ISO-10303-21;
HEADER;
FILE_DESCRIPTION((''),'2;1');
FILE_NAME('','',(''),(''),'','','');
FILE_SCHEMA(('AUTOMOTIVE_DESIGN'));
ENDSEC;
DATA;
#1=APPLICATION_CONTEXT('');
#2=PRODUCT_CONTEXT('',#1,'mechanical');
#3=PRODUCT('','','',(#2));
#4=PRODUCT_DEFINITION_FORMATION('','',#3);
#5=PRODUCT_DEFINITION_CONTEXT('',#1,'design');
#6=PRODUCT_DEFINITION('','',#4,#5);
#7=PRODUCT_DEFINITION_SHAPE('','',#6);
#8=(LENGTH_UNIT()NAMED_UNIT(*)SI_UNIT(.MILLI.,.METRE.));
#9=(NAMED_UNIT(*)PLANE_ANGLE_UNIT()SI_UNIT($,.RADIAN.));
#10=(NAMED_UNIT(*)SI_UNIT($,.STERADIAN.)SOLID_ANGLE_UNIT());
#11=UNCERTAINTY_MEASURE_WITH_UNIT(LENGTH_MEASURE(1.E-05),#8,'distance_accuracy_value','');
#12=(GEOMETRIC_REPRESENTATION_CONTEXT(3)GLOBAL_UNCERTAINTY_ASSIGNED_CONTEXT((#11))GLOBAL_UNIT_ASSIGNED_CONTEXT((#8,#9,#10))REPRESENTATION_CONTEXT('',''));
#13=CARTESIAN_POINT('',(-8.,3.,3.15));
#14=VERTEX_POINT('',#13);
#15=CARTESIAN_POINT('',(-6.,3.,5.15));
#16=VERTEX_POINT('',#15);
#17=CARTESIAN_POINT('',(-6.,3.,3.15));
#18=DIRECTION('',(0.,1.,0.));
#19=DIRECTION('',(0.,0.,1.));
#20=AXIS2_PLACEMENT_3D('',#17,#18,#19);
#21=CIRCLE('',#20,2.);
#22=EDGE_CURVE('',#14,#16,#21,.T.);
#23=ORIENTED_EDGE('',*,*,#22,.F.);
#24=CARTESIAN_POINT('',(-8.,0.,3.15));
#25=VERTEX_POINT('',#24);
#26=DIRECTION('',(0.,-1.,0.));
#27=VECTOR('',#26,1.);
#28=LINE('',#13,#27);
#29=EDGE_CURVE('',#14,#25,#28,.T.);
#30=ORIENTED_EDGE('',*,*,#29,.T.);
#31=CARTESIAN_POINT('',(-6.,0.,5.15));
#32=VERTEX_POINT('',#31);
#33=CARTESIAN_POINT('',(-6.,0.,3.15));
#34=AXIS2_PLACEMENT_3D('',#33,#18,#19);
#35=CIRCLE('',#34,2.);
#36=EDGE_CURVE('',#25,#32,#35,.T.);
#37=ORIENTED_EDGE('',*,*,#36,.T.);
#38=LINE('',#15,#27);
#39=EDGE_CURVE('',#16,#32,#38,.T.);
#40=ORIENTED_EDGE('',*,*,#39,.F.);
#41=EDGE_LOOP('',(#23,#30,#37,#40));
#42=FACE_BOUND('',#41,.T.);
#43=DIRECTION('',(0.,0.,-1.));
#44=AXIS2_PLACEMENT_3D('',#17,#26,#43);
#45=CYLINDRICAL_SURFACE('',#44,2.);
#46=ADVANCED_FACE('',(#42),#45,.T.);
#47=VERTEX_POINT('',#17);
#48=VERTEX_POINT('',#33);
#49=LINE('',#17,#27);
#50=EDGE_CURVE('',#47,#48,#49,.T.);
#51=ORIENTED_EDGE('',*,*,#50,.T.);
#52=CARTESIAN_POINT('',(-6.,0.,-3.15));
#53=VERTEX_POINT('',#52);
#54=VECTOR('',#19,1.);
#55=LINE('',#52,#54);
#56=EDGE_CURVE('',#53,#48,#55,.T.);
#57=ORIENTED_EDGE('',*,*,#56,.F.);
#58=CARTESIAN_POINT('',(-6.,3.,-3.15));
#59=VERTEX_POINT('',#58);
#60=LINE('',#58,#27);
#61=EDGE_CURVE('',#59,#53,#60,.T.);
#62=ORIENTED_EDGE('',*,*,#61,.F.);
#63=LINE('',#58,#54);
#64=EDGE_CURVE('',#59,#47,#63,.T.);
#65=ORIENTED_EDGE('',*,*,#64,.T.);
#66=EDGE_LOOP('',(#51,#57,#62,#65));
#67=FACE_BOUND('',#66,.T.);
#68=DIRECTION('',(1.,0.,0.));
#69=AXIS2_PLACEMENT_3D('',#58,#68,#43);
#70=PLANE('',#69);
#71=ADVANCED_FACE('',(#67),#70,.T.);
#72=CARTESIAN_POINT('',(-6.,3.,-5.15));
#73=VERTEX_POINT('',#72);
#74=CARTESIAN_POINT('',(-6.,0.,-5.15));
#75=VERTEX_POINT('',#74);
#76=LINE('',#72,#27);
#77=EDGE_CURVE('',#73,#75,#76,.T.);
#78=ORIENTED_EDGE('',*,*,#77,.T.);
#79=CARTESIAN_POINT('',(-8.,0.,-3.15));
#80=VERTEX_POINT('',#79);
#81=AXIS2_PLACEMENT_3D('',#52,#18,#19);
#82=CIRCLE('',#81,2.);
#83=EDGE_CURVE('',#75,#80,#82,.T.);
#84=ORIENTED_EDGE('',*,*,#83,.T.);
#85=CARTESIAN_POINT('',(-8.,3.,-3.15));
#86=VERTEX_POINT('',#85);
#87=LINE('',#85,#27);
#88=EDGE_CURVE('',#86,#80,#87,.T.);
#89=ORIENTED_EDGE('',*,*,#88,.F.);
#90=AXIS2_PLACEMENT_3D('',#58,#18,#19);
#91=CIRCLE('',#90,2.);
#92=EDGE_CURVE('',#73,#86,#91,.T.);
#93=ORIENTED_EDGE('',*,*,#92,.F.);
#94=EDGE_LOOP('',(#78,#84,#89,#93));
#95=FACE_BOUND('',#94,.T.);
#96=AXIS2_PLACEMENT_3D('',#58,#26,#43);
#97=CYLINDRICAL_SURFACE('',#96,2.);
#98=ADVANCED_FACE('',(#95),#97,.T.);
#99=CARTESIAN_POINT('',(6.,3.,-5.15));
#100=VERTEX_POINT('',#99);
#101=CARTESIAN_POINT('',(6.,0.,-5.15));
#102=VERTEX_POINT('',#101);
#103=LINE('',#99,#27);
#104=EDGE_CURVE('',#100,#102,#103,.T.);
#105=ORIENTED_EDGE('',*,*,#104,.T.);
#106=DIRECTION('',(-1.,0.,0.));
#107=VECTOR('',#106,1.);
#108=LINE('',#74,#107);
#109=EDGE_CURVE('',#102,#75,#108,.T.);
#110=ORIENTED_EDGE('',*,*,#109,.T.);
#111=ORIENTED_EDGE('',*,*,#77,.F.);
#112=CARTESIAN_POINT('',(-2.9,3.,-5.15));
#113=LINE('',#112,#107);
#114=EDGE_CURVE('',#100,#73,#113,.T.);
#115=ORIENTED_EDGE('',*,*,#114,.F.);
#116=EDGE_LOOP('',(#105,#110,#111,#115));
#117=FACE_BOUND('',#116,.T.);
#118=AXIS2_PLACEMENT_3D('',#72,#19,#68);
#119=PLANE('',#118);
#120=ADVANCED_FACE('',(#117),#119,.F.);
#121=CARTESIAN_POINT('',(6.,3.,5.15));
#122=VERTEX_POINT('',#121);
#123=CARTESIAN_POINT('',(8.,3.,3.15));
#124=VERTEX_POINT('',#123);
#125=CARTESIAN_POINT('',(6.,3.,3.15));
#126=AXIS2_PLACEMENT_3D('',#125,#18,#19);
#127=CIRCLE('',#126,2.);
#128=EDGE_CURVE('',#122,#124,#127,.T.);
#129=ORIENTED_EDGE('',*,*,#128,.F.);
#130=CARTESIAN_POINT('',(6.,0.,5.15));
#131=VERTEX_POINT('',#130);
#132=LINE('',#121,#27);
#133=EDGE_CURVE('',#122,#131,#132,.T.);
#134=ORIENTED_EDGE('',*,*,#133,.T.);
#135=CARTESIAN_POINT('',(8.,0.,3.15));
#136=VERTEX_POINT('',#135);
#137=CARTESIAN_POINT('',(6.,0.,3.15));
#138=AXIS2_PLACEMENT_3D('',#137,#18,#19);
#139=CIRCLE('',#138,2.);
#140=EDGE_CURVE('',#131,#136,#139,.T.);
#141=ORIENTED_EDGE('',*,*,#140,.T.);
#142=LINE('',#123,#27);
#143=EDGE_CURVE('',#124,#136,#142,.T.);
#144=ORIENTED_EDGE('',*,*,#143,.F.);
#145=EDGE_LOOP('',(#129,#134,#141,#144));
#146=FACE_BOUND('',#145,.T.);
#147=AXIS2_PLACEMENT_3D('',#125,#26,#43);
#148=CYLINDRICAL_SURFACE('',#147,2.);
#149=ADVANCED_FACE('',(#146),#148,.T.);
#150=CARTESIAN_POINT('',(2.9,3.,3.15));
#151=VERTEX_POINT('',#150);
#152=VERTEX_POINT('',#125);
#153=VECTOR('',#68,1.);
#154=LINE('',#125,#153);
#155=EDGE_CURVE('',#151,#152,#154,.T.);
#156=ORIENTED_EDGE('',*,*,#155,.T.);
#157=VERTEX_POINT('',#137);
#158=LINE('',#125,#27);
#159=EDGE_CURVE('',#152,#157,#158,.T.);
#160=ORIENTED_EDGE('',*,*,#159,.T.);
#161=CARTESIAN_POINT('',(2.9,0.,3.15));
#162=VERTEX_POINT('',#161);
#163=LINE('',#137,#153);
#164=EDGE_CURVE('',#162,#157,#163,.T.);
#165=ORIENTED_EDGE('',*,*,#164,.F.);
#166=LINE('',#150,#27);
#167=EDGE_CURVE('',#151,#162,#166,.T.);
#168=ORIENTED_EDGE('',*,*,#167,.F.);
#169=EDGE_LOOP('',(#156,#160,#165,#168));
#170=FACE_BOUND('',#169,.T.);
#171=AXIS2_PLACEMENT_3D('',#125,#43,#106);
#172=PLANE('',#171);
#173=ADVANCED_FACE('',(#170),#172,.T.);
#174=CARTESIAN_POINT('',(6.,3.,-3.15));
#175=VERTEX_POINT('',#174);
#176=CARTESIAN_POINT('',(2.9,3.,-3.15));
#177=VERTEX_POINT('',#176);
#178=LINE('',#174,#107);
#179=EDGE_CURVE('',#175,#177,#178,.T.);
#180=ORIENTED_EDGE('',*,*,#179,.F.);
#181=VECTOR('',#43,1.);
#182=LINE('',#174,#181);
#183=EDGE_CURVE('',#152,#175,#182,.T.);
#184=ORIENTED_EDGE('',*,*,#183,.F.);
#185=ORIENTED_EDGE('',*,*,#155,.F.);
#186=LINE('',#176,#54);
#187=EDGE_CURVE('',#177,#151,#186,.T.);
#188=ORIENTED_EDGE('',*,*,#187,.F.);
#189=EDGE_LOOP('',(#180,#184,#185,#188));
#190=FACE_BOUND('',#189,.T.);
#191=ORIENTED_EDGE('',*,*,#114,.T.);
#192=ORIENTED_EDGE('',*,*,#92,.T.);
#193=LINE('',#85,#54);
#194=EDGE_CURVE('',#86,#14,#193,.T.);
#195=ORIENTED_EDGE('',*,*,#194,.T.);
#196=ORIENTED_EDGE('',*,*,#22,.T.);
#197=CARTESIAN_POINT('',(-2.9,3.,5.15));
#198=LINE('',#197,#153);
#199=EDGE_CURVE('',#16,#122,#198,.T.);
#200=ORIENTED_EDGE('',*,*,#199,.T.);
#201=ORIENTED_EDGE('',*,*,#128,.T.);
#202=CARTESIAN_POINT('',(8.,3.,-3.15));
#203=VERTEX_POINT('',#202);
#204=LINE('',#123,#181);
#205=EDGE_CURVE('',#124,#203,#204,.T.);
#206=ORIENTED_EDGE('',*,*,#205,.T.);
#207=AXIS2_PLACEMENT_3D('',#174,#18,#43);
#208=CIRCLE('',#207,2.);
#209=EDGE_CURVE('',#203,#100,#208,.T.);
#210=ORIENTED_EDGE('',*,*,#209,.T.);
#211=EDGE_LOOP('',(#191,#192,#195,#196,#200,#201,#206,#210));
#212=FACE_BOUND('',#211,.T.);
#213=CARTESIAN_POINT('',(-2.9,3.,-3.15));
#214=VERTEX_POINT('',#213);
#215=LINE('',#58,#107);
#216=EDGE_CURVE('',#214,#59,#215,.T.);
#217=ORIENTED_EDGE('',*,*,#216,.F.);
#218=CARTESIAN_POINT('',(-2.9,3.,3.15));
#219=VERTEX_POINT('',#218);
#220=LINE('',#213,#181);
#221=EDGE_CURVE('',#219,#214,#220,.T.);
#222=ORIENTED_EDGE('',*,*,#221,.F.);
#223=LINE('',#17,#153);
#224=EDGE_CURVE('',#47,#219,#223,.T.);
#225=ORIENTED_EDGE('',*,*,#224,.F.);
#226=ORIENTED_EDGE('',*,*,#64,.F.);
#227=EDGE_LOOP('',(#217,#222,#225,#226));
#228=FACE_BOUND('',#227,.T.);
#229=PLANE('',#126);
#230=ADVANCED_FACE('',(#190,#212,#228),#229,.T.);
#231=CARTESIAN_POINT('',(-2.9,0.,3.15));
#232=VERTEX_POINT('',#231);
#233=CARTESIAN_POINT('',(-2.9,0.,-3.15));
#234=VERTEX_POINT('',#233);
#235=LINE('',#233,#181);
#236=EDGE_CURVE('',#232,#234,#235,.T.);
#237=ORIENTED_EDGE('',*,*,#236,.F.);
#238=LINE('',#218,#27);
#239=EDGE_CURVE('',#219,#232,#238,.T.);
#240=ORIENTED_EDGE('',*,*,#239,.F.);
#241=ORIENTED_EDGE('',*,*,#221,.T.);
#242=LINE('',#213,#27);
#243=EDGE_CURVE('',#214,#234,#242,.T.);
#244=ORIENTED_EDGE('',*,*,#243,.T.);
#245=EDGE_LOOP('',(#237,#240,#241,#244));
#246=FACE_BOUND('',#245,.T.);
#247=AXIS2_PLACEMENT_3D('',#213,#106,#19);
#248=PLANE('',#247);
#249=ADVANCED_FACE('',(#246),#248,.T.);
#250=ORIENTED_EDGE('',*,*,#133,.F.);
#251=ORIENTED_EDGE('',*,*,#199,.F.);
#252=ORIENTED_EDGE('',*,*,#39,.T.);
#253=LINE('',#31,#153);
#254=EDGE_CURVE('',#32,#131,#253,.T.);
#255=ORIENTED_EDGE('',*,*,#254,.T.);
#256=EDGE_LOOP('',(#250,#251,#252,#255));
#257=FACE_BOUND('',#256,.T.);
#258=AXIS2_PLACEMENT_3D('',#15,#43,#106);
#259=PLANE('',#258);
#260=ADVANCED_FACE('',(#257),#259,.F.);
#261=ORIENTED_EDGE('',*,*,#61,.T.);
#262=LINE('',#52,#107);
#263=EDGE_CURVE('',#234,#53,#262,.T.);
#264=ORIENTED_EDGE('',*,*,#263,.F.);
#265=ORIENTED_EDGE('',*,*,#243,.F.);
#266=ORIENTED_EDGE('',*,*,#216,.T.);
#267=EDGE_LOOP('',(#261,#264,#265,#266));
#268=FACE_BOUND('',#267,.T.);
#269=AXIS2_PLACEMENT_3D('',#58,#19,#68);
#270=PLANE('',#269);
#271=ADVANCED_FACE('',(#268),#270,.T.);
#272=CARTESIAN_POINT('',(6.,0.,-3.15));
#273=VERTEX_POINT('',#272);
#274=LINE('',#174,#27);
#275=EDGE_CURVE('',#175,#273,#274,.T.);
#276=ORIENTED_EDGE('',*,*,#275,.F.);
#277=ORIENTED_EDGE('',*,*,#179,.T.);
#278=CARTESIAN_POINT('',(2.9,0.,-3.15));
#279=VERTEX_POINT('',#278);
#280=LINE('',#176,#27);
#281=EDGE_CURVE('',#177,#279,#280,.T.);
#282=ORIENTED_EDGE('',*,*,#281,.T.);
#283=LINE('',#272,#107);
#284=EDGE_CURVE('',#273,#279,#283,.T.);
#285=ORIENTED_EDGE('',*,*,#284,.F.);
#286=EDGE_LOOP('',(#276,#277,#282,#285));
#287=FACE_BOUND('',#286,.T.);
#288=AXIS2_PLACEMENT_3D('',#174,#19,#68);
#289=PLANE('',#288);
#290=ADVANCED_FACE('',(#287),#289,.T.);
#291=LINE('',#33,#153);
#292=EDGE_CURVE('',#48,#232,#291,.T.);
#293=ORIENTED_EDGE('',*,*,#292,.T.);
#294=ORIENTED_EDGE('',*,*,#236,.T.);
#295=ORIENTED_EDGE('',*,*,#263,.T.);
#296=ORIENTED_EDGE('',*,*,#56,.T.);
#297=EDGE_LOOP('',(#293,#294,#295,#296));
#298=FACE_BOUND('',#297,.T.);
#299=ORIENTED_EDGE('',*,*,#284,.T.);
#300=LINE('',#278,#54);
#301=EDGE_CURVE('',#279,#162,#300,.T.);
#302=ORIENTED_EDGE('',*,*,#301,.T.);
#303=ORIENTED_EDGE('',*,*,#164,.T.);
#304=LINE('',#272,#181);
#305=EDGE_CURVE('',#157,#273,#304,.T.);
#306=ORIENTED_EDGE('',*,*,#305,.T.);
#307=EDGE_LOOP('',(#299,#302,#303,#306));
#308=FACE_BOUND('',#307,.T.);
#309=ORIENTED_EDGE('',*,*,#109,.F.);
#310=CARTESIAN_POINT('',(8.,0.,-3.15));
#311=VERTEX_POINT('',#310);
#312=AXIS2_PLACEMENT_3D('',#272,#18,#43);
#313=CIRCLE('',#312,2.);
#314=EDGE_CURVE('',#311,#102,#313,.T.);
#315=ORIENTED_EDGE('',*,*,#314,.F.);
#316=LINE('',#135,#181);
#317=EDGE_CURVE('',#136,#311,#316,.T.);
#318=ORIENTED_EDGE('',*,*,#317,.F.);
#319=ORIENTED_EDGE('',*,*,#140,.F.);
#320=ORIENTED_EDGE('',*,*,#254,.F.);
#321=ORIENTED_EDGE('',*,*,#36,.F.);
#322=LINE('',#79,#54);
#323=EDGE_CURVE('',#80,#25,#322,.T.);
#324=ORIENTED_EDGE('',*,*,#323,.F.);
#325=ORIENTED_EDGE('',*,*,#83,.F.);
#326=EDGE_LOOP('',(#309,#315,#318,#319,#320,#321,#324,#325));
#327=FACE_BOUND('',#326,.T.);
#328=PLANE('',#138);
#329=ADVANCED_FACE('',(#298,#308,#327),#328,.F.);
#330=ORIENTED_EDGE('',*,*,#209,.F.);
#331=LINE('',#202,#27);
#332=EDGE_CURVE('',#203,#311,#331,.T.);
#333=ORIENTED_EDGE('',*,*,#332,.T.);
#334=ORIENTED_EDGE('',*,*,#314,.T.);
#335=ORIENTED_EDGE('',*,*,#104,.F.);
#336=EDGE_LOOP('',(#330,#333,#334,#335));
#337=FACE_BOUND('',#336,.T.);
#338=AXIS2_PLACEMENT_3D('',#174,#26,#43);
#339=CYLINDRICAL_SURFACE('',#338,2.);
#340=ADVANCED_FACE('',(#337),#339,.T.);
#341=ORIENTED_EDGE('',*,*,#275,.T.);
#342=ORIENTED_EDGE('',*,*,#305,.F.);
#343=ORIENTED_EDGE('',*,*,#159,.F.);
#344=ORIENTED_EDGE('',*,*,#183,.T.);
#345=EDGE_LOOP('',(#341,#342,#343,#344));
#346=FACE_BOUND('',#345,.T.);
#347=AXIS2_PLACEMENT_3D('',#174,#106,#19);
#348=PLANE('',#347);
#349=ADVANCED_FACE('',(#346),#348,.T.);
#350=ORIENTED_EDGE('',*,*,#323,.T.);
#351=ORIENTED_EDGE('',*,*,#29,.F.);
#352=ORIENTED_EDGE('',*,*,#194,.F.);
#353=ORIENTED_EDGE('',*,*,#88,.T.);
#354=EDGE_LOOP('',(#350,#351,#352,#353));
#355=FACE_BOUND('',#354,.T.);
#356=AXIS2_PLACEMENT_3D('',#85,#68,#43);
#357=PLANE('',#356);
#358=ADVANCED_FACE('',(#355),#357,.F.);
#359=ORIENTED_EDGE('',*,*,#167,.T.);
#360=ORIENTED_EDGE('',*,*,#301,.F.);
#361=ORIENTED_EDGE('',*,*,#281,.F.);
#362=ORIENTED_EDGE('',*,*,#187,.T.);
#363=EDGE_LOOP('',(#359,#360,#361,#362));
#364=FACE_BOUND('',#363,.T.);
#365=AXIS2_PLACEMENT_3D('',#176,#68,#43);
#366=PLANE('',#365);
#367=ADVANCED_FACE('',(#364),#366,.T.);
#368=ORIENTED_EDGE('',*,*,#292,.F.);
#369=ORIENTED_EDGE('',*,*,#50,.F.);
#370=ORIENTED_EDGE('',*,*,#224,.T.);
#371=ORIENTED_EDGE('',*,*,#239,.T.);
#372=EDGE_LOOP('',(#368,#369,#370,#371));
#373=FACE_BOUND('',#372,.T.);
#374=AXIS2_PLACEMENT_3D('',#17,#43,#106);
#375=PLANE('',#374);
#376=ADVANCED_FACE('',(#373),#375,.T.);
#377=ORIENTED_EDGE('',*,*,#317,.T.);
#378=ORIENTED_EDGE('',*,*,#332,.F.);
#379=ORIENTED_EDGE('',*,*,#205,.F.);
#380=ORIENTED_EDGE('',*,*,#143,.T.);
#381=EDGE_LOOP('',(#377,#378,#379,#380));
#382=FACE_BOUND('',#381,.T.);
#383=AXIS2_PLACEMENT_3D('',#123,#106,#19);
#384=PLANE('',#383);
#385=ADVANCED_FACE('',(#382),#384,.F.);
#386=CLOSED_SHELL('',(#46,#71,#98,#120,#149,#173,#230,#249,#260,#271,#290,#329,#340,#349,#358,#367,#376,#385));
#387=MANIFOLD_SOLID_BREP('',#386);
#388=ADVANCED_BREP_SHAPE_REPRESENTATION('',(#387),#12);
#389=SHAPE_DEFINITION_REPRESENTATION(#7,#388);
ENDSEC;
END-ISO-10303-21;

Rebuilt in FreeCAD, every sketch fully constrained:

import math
import FreeCAD as App
import Part
import Sketcher
from FreeCAD import Vector


def add_polygon(sketch, points):
    """Adds a closed chain of lines whose ends are joined by coincident constraints."""
    first, n = sketch.GeometryCount, len(points)
    for a, b in zip(points, points[1:] + points[:1]):
        sketch.addGeometry(Part.LineSegment(App.Vector(*a, 0), App.Vector(*b, 0)), False)
    for i in range(n):
        sketch.addConstraint(Sketcher.Constraint("Coincident", first + i, 2, first + (i + 1) % n, 1))

doc = App.newDocument("Part")
body = doc.addObject("PartDesign::Body", "Body")

sketch1 = doc.addObject("Sketcher::SketchObject", "Sketch")
body.addObject(sketch1)
sketch1.AttachmentSupport = (doc.XZ_Plane, [""])
sketch1.MapMode = "FlatFace"
sketch1.addGeometry(Part.LineSegment(Vector(-8, -3.1, 0), Vector(-8, 3.1, 0)), False)
sketch1.addGeometry(Part.ArcOfCircle(Part.Circle(Vector(-6, 3.1, 0), Vector(0, 0, 1), 2), math.radians(90), math.radians(180)), False)
sketch1.addGeometry(Part.LineSegment(Vector(-6, 5.2, 0), Vector(6, 5.2, 0)), False)
sketch1.addGeometry(Part.ArcOfCircle(Part.Circle(Vector(6, 3.1, 0), Vector(0, 0, 1), 2), math.radians(0), math.radians(90)), False)
sketch1.addGeometry(Part.LineSegment(Vector(8, 3.1, 0), Vector(8, -3.1, 0)), False)
sketch1.addGeometry(Part.ArcOfCircle(Part.Circle(Vector(6, -3.1, 0), Vector(0, 0, 1), 2), math.radians(-90), math.radians(0)), False)
sketch1.addGeometry(Part.LineSegment(Vector(6, -5.2, 0), Vector(-6, -5.2, 0)), False)
sketch1.addGeometry(Part.ArcOfCircle(Part.Circle(Vector(-6, -3.1, 0), Vector(0, 0, 1), 2), math.radians(-180), math.radians(-90)), False)
add_polygon(sketch1, [(-2.9, 3.1), (-6, 3.1), (-6, -3.1), (-2.9, -3.1)])
add_polygon(sketch1, [(6, 3.1), (2.9, 3.1), (2.9, -3.1), (6, -3.1)])
sketch1.addConstraint([
    Sketcher.Constraint("Tangent", 0, 2, 1, 2),
    Sketcher.Constraint("Tangent", 1, 1, 2, 1),
    Sketcher.Constraint("Tangent", 2, 2, 3, 2),
    Sketcher.Constraint("Tangent", 3, 1, 4, 1),
    Sketcher.Constraint("Tangent", 4, 2, 5, 2),
    Sketcher.Constraint("Tangent", 5, 1, 6, 1),
    Sketcher.Constraint("Tangent", 6, 2, 7, 2),
    Sketcher.Constraint("Tangent", 7, 1, 0, 1),
    Sketcher.Constraint("Vertical", 0),
    Sketcher.Constraint("Horizontal", 2),
    Sketcher.Constraint("Vertical", 4),
    Sketcher.Constraint("Horizontal", 6),
    Sketcher.Constraint("Horizontal", 8),
    Sketcher.Constraint("Vertical", 9),
    Sketcher.Constraint("Horizontal", 10),
    Sketcher.Constraint("Vertical", 11),
    Sketcher.Constraint("Horizontal", 12),
    Sketcher.Constraint("Vertical", 13),
    Sketcher.Constraint("Horizontal", 14),
    Sketcher.Constraint("Vertical", 15),
    Sketcher.Constraint("Coincident", 8, 2, 1, 3),
    Sketcher.Constraint("Coincident", 9, 2, 7, 3),
    Sketcher.Constraint("Coincident", 14, 2, 5, 3),
    Sketcher.Constraint("Coincident", 15, 2, 3, 3),
    Sketcher.Constraint("Equal", 1, 3),
    Sketcher.Constraint("Symmetric", 1, 3, 5, 3, -1, 1),
    Sketcher.Constraint("Equal", 10, 12),
    Sketcher.Constraint("Radius", 1, 2.0),
    Sketcher.Constraint("DistanceX", 2, 1, 2, 2, 12.0),
    Sketcher.Constraint("DistanceX", 8, 2, 8, 1, 3.1),
    Sketcher.Constraint("DistanceY", 0, 1, 0, 2, 6.3),
])
pad1 = doc.addObject("PartDesign::Pad", "Pad")
body.addObject(pad1)
pad1.Profile = sketch1
pad1.Length = 3
pad1.Reversed = True

doc.recompute()
